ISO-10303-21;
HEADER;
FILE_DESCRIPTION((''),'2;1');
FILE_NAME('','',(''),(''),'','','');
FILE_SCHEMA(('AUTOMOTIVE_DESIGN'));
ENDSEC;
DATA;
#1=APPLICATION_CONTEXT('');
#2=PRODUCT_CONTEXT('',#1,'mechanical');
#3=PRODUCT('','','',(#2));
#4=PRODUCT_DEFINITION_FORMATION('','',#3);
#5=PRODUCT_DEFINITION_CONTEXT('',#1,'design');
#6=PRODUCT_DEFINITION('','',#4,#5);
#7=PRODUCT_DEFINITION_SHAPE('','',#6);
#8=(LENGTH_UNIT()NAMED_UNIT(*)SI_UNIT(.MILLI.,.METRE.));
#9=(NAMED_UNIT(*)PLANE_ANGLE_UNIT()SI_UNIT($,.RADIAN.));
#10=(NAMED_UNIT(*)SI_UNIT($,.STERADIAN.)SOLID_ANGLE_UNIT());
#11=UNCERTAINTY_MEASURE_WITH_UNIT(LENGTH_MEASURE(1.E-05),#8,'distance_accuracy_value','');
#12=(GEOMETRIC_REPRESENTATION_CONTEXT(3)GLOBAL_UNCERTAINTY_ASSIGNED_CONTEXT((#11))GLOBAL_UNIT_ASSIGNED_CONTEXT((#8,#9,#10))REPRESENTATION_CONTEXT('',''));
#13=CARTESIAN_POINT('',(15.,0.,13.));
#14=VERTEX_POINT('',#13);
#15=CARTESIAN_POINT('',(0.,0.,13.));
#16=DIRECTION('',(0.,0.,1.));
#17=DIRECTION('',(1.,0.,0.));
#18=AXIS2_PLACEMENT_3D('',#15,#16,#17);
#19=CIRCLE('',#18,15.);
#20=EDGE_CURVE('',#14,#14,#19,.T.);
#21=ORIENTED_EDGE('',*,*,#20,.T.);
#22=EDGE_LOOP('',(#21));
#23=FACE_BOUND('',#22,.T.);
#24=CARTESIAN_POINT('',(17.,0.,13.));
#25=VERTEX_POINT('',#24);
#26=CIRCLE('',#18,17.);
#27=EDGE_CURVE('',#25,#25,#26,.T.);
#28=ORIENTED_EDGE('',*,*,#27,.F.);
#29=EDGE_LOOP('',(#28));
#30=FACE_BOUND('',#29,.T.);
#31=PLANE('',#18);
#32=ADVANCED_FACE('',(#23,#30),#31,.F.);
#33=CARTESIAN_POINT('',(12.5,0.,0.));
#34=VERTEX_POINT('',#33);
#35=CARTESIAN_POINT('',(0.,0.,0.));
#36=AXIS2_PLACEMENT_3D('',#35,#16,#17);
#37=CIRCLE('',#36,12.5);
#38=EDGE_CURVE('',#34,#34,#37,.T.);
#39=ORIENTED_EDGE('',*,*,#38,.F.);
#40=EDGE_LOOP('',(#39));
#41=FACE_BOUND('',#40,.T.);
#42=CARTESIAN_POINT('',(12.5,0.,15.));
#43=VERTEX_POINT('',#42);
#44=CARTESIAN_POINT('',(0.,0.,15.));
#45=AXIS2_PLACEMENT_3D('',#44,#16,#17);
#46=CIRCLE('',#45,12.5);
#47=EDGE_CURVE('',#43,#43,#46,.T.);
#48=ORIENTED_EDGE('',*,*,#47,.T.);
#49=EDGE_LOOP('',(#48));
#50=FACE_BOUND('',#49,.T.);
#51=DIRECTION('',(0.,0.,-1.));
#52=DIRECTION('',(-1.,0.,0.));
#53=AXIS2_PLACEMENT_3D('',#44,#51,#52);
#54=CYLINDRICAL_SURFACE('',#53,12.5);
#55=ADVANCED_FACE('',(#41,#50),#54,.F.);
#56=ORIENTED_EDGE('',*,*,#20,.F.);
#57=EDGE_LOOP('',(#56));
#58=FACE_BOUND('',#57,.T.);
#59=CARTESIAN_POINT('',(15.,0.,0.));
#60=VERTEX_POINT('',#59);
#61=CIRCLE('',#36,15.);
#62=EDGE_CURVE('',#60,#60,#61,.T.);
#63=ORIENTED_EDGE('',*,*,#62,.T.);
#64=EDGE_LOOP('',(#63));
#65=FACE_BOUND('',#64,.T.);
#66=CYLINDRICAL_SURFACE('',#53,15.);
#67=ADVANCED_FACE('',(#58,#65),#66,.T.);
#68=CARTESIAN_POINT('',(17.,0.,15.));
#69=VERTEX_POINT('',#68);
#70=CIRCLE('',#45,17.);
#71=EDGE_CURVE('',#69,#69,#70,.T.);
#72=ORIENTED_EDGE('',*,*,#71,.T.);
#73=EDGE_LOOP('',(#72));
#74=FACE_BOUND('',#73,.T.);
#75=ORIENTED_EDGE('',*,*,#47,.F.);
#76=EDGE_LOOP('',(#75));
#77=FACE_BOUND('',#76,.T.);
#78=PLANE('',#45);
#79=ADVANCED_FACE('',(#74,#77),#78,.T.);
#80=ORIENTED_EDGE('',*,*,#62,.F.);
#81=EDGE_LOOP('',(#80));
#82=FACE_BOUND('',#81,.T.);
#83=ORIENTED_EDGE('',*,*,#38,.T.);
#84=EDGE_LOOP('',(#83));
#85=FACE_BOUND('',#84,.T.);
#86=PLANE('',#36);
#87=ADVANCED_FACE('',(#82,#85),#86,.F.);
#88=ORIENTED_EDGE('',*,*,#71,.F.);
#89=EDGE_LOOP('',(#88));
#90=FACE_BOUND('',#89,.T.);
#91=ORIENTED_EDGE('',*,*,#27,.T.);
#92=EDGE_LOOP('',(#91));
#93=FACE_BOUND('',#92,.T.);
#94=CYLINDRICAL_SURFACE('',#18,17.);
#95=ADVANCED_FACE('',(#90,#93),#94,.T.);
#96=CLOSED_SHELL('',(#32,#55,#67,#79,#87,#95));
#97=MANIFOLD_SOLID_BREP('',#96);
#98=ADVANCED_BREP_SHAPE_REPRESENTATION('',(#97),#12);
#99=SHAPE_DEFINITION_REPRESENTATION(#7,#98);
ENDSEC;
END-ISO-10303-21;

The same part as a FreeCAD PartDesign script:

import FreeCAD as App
import Part
import Sketcher

doc = App.newDocument("Part")
body = doc.addObject("PartDesign::Body", "Body")

sketch1 = body.newObject("Sketcher::SketchObject", "Sketch")
sketch1.AttachmentSupport = (doc.getObject("XY_Plane"), [""])
sketch1.MapMode = "FlatFace"
sketch1.addGeometry([
    Part.Circle(App.Vector(0, 0, 0), App.Vector(0, 0, 1), 15),
    Part.Circle(App.Vector(0, 0, 0), App.Vector(0, 0, 1), 12),
], False)
sketch1.addConstraint([
    Sketcher.Constraint("Coincident", 0, 3, -1, 1),
    Sketcher.Constraint("Coincident", 1, 3, -1, 1),
    Sketcher.Constraint("Diameter", 0, 30.0),
    Sketcher.Constraint("Diameter", 1, 25.0),
])
pad1 = body.newObject("PartDesign::Pad", "Pad")
pad1.Profile = sketch1
pad1.Length = 15

sketch2 = body.newObject("Sketcher::SketchObject", "Sketch001")
sketch2.AttachmentSupport = (doc.getObject("XY_Plane"), [""])
sketch2.MapMode = "FlatFace"
sketch2.AttachmentOffset = App.Placement(App.Vector(0, 0, 13), App.Rotation())
sketch2.addGeometry([
    Part.Circle(App.Vector(0, 0, 0), App.Vector(0, 0, 1), 17),
    Part.Circle(App.Vector(0, 0, 0), App.Vector(0, 0, 1), 15),
], False)
sketch2.addConstraint([
    Sketcher.Constraint("Coincident", 0, 3, -1, 1),
    Sketcher.Constraint("Coincident", 1, 3, -1, 1),
    Sketcher.Constraint("Diameter", 0, 34.0),
    Sketcher.Constraint("Diameter", 1, 30.0),
])
pad2 = body.newObject("PartDesign::Pad", "Pad001")
pad2.Profile = sketch2
pad2.Length = 2

doc.recompute()
